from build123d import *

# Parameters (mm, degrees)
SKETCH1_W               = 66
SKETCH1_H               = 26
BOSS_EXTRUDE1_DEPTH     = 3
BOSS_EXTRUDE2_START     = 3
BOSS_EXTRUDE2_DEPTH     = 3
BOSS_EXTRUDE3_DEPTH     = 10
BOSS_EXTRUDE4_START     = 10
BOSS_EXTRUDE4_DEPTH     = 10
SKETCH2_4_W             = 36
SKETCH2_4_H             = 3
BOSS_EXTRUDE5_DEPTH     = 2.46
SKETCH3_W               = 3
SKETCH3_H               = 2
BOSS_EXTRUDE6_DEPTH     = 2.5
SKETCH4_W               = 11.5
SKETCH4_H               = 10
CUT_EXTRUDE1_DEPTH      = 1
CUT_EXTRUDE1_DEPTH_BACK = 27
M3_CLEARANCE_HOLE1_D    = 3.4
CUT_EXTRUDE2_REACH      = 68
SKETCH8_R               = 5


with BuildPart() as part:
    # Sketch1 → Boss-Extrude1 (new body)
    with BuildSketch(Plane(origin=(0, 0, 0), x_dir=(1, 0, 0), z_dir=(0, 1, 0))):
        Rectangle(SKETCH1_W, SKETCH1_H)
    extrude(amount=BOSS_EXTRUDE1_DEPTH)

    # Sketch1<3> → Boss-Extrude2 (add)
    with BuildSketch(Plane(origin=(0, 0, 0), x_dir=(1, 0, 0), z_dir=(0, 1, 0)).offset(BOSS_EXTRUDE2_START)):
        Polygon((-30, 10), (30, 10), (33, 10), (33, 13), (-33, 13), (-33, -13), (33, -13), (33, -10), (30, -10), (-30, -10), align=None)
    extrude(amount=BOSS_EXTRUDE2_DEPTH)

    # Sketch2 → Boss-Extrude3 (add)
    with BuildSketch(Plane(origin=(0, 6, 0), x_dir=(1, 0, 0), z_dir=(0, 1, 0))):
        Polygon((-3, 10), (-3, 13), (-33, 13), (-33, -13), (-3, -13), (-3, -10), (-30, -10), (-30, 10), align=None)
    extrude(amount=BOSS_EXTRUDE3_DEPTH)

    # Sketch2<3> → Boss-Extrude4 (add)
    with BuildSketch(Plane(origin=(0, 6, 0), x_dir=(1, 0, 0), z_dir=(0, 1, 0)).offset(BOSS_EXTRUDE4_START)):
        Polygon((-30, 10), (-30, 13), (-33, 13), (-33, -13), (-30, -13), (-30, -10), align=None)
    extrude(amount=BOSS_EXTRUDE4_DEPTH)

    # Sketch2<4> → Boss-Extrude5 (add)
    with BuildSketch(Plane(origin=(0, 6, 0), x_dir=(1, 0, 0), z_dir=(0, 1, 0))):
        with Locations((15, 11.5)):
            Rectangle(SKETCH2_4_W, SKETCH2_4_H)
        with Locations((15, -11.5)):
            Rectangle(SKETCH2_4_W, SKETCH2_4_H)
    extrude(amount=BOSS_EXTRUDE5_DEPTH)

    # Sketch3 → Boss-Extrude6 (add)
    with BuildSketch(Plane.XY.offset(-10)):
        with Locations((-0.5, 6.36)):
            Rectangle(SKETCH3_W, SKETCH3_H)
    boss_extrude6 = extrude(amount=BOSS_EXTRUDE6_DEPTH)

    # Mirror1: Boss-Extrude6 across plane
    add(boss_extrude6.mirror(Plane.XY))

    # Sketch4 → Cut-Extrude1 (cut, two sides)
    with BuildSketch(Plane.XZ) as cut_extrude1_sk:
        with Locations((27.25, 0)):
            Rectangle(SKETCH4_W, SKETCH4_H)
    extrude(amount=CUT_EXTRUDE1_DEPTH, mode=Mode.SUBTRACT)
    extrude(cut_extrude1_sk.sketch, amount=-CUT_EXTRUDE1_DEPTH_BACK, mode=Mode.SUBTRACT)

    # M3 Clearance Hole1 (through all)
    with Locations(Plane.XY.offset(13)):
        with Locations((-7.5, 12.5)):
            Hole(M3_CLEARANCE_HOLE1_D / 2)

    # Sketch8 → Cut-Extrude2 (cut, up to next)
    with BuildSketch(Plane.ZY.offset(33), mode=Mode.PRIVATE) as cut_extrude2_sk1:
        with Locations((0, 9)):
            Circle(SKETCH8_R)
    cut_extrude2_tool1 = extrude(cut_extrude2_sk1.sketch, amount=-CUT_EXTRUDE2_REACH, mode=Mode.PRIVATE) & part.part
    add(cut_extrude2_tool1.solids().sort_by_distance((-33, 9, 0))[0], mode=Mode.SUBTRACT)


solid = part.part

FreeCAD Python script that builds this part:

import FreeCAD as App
import Part
import Sketcher
Q = App.Units.Quantity

doc = App.newDocument("Part")
body = doc.addObject("PartDesign::Body", "Body")

# Sketch on XZ plane
sketch1 = body.newObject("Sketcher::SketchObject", "Sketch")
sketch1.AttachmentSupport = (doc.getObject("XZ_Plane"), [""])
sketch1.MapMode = "FlatFace"
sketch1.addGeometry([
    Part.LineSegment(App.Vector(-33, -13, 0), App.Vector(-33, 13, 0)),
    Part.LineSegment(App.Vector(-33, 13, 0), App.Vector(33, 13, 0)),
    Part.LineSegment(App.Vector(33, 13, 0), App.Vector(33, -13, 0)),
    Part.LineSegment(App.Vector(33, -13, 0), App.Vector(-33, -13, 0)),
], False)
sketch1.addConstraint([
    Sketcher.Constraint("Coincident", 0, 2, 1, 1),
    Sketcher.Constraint("Coincident", 1, 2, 2, 1),
    Sketcher.Constraint("Coincident", 2, 2, 3, 1),
    Sketcher.Constraint("Coincident", 3, 2, 0, 1),
    Sketcher.Constraint("Vertical", 0),
    Sketcher.Constraint("Horizontal", 1),
    Sketcher.Constraint("Vertical", 2),
    Sketcher.Constraint("Horizontal", 3),
    Sketcher.Constraint("Symmetric", 0, 2, 2, 2, -1, 1),
    Sketcher.Constraint("DistanceX", 1, 1, 1, 2, Q("66 mm")),
    Sketcher.Constraint("DistanceY", 0, 1, 0, 2, Q("26 mm")),
])
pad1 = body.newObject("PartDesign::Pad", "Pad")
pad1.Profile = sketch1
pad1.Length = 3
pad1.Reversed = True

# Sketch on XZ plane
sketch2 = body.newObject("Sketcher::SketchObject", "Sketch001")
sketch2.AttachmentSupport = (doc.getObject("XZ_Plane"), [""])
sketch2.MapMode = "FlatFace"
sketch2.AttachmentOffset = App.Placement(App.Vector(0, 0, -3), App.Rotation())
sketch2.addGeometry([
    Part.LineSegment(App.Vector(-30, -10, 0), App.Vector(33, -10, 0)),  # 0
    Part.LineSegment(App.Vector(33, -10, 0), App.Vector(33, -13, 0)),  # 1
    Part.LineSegment(App.Vector(33, -13, 0), App.Vector(-33, -13, 0)),  # 2
    Part.LineSegment(App.Vector(-33, -13, 0), App.Vector(-33, 13, 0)),  # 3
    Part.LineSegment(App.Vector(-33, 13, 0), App.Vector(33, 13, 0)),  # 4
    Part.LineSegment(App.Vector(33, 13, 0), App.Vector(33, 10, 0)),  # 5
    Part.LineSegment(App.Vector(33, 10, 0), App.Vector(-30, 10, 0)),  # 6
    Part.LineSegment(App.Vector(-30, 10, 0), App.Vector(-30, -10, 0)),  # 7
], False)
sketch2.addConstraint([
    Sketcher.Constraint("Coincident", 0, 2, 1, 1),
    Sketcher.Constraint("Coincident", 1, 2, 2, 1),
    Sketcher.Constraint("Coincident", 2, 2, 3, 1),
    Sketcher.Constraint("Coincident", 3, 2, 4, 1),
    Sketcher.Constraint("Coincident", 4, 2, 5, 1),
    Sketcher.Constraint("Coincident", 5, 2, 6, 1),
    Sketcher.Constraint("Coincident", 6, 2, 7, 1),
    Sketcher.Constraint("Coincident", 7, 2, 0, 1),
    Sketcher.Constraint("Horizontal", 0),
    Sketcher.Constraint("Vertical", 1),
    Sketcher.Constraint("Horizontal", 2),
    Sketcher.Constraint("Vertical", 3),
    Sketcher.Constraint("Horizontal", 4),
    Sketcher.Constraint("Vertical", 5),
    Sketcher.Constraint("Horizontal", 6),
    Sketcher.Constraint("Vertical", 7),
    Sketcher.Constraint("Symmetric", 1, 2, 3, 2, -1, 1),
    Sketcher.Constraint("Symmetric", 0, 2, 5, 2, -1),
    Sketcher.Constraint("DistanceX", 0, 1, 0, 2, Q("63 mm")),
    Sketcher.Constraint("DistanceX", 2, 2, 2, 1, Q("66 mm")),
    Sketcher.Constraint("DistanceY", 1, 2, 1, 1, Q("3 mm")),
    Sketcher.Constraint("DistanceY", 3, 1, 3, 2, Q("26 mm")),
])
pad2 = body.newObject("PartDesign::Pad", "Pad001")
pad2.Profile = sketch2
pad2.Length = 3
pad2.Reversed = True

# Sketch on XZ plane
sketch3 = body.newObject("Sketcher::SketchObject", "Sketch002")
sketch3.AttachmentSupport = (doc.getObject("XZ_Plane"), [""])
sketch3.MapMode = "FlatFace"
sketch3.AttachmentOffset = App.Placement(App.Vector(0, 0, -6), App.Rotation())
sketch3.addGeometry([
    Part.LineSegment(App.Vector(-3, -10, 0), App.Vector(-3, -13, 0)),  # 0
    Part.LineSegment(App.Vector(-3, -13, 0), App.Vector(-33, -13, 0)),  # 1
    Part.LineSegment(App.Vector(-33, -13, 0), App.Vector(-33, 13, 0)),  # 2
    Part.LineSegment(App.Vector(-33, 13, 0), App.Vector(-3, 13, 0)),  # 3
    Part.LineSegment(App.Vector(-3, 13, 0), App.Vector(-3, 10, 0)),  # 4
    Part.LineSegment(App.Vector(-3, 10, 0), App.Vector(-30, 10, 0)),  # 5
    Part.LineSegment(App.Vector(-30, 10, 0), App.Vector(-30, -10, 0)),  # 6
    Part.LineSegment(App.Vector(-30, -10, 0), App.Vector(-3, -10, 0)),  # 7
], False)
sketch3.addConstraint([
    Sketcher.Constraint("Coincident", 0, 2, 1, 1),
    Sketcher.Constraint("Coincident", 1, 2, 2, 1),
    Sketcher.Constraint("Coincident", 2, 2, 3, 1),
    Sketcher.Constraint("Coincident", 3, 2, 4, 1),
    Sketcher.Constraint("Coincident", 4, 2, 5, 1),
    Sketcher.Constraint("Coincident", 5, 2, 6, 1),
    Sketcher.Constraint("Coincident", 6, 2, 7, 1),
    Sketcher.Constraint("Coincident", 7, 2, 0, 1),
    Sketcher.Constraint("Vertical", 0),
    Sketcher.Constraint("Horizontal", 1),
    Sketcher.Constraint("Vertical", 2),
    Sketcher.Constraint("Horizontal", 3),
    Sketcher.Constraint("Vertical", 4),
    Sketcher.Constraint("Horizontal", 5),
    Sketcher.Constraint("Vertical", 6),
    Sketcher.Constraint("Horizontal", 7),
    Sketcher.Constraint("Symmetric", 0, 2, 3, 2, -1),
    Sketcher.Constraint("Equal", 0, 4),
    Sketcher.Constraint("DistanceX", 1, 2, 1, 1, Q("30 mm")),
    Sketcher.Constraint("DistanceX", 5, 2, 5, 1, Q("27 mm")),
    Sketcher.Constraint("DistanceY", 0, 2, 0, 1, Q("3 mm")),
    Sketcher.Constraint("DistanceY", 2, 1, 2, 2, Q("26 mm")),
    Sketcher.Constraint("DistanceX", 0, 2, -1, 1, Q("3 mm")),
])
pad3 = body.newObject("PartDesign::Pad", "Pad002")
pad3.Profile = sketch3
pad3.Length = 10
pad3.Reversed = True

# Sketch on XZ plane
sketch4 = body.newObject("Sketcher::SketchObject", "Sketch003")
sketch4.AttachmentSupport = (doc.getObject("XZ_Plane"), [""])
sketch4.MapMode = "FlatFace"
sketch4.AttachmentOffset = App.Placement(App.Vector(0, 0, -16), App.Rotation())
sketch4.addGeometry([
    Part.LineSegment(App.Vector(-30, -13, 0), App.Vector(-33, -13, 0)),
    Part.LineSegment(App.Vector(-33, -13, 0), App.Vector(-33, 13, 0)),
    Part.LineSegment(App.Vector(-33, 13, 0), App.Vector(-30, 13, 0)),
    Part.LineSegment(App.Vector(-30, 13, 0), App.Vector(-30, -13, 0)),
], False)
sketch4.addConstraint([
    Sketcher.Constraint("Coincident", 0, 2, 1, 1),
    Sketcher.Constraint("Coincident", 1, 2, 2, 1),
    Sketcher.Constraint("Coincident", 2, 2, 3, 1),
    Sketcher.Constraint("Coincident", 3, 2, 0, 1),
    Sketcher.Constraint("Horizontal", 0),
    Sketcher.Constraint("Vertical", 1),
    Sketcher.Constraint("Horizontal", 2),
    Sketcher.Constraint("Vertical", 3),
    Sketcher.Constraint("DistanceX", 0, 2, 0, 1, Q("3 mm")),
    Sketcher.Constraint("DistanceY", 1, 1, 1, 2, Q("26 mm")),
    Sketcher.Constraint("DistanceX", 0, 2, -1, 1, Q("33 mm")),
    Sketcher.Constraint("DistanceY", 0, 2, -1, 1, Q("13 mm")),
])
pad4 = body.newObject("PartDesign::Pad", "Pad003")
pad4.Profile = sketch4
pad4.Length = 10
pad4.Reversed = True

# Sketch on XZ plane
sketch5 = body.newObject("Sketcher::SketchObject", "Sketch004")
sketch5.AttachmentSupport = (doc.getObject("XZ_Plane"), [""])
sketch5.MapMode = "FlatFace"
sketch5.AttachmentOffset = App.Placement(App.Vector(0, 0, -6), App.Rotation())
sketch5.addGeometry([
    Part.LineSegment(App.Vector(-3, -13, 0), App.Vector(-3, -10, 0)),  # 0
    Part.LineSegment(App.Vector(-3, -10, 0), App.Vector(33, -10, 0)),  # 1
    Part.LineSegment(App.Vector(33, -10, 0), App.Vector(33, -13, 0)),  # 2
    Part.LineSegment(App.Vector(33, -13, 0), App.Vector(-3, -13, 0)),  # 3
    Part.LineSegment(App.Vector(-3, 10, 0), App.Vector(-3, 13, 0)),  # 4
    Part.LineSegment(App.Vector(-3, 13, 0), App.Vector(33, 13, 0)),  # 5
    Part.LineSegment(App.Vector(33, 13, 0), App.Vector(33, 10, 0)),  # 6
    Part.LineSegment(App.Vector(33, 10, 0), App.Vector(-3, 10, 0)),  # 7
], False)
sketch5.addConstraint([
    Sketcher.Constraint("Coincident", 0, 2, 1, 1),
    Sketcher.Constraint("Coincident", 1, 2, 2, 1),
    Sketcher.Constraint("Coincident", 2, 2, 3, 1),
    Sketcher.Constraint("Coincident", 3, 2, 0, 1),
    Sketcher.Constraint("Coincident", 4, 2, 5, 1),
    Sketcher.Constraint("Coincident", 5, 2, 6, 1),
    Sketcher.Constraint("Coincident", 6, 2, 7, 1),
    Sketcher.Constraint("Coincident", 7, 2, 4, 1),
    Sketcher.Constraint("Vertical", 0),
    Sketcher.Constraint("Horizontal", 1),
    Sketcher.Constraint("Vertical", 2),
    Sketcher.Constraint("Horizontal", 3),
    Sketcher.Constraint("Vertical", 4),
    Sketcher.Constraint("Horizontal", 5),
    Sketcher.Constraint("Vertical", 6),
    Sketcher.Constraint("Horizontal", 7),
    Sketcher.Constraint("Symmetric", 3, 2, 4, 2, -1),
    Sketcher.Constraint("Symmetric", 1, 2, 6, 2, -1),
    Sketcher.Constraint("DistanceX", 1, 1, 1, 2, Q("36 mm")),
    Sketcher.Constraint("DistanceY", 0, 1, 0, 2, Q("3 mm")),
    Sketcher.Constraint("DistanceX", 0, 2, -1, 1, Q("3 mm")),
    Sketcher.Constraint("DistanceY", 0, 2, -1, 1, Q("10 mm")),
])
pad5 = body.newObject("PartDesign::Pad", "Pad004")
pad5.Profile = sketch5
pad5.Length = 2.46
pad5.Reversed = True

# Sketch on XY plane
sketch6 = body.newObject("Sketcher::SketchObject", "Sketch005")
sketch6.AttachmentSupport = (doc.getObject("XY_Plane"), [""])
sketch6.MapMode = "FlatFace"
sketch6.AttachmentOffset = App.Placement(App.Vector(0, 0, -10), App.Rotation())
sketch6.addGeometry([
    Part.LineSegment(App.Vector(-2, 7.4, 0), App.Vector(-2, 5.4, 0)),
    Part.LineSegment(App.Vector(-2, 5.4, 0), App.Vector(1, 5.4, 0)),
    Part.LineSegment(App.Vector(1, 5.4, 0), App.Vector(1, 7.4, 0)),
    Part.LineSegment(App.Vector(1, 7.4, 0), App.Vector(-2, 7.4, 0)),
], False)
sketch6.addConstraint([
    Sketcher.Constraint("Coincident", 0, 2, 1, 1),
    Sketcher.Constraint("Coincident", 1, 2, 2, 1),
    Sketcher.Constraint("Coincident", 2, 2, 3, 1),
    Sketcher.Constraint("Coincident", 3, 2, 0, 1),
    Sketcher.Constraint("Vertical", 0),
    Sketcher.Constraint("Horizontal", 1),
    Sketcher.Constraint("Vertical", 2),
    Sketcher.Constraint("Horizontal", 3),
    Sketcher.Constraint("DistanceX", 1, 1, 1, 2, Q("3 mm")),
    Sketcher.Constraint("DistanceY", 0, 2, 0, 1, Q("2 mm")),
    Sketcher.Constraint("DistanceX", 0, 2, -1, 1, Q("2 mm")),
    Sketcher.Constraint("DistanceY", -1, 1, 0, 2, Q("5.36 mm")),
])
pad6 = body.newObject("PartDesign::Pad", "Pad005")
pad6.Profile = sketch6
pad6.Length = 2.5
doc.recompute()

mirrored = body.newObject("PartDesign::Mirrored", "Mirrored")
mirrored.Originals = [pad6]
mirrored.MirrorPlane = (doc.getObject("XY_Plane"), [""])
body.Tip = mirrored

# Sketch on XZ plane
sketch7 = body.newObject("Sketcher::SketchObject", "Sketch006")
sketch7.AttachmentSupport = (doc.getObject("XZ_Plane"), [""])
sketch7.MapMode = "FlatFace"
sketch7.addGeometry([
    Part.LineSegment(App.Vector(22, 5, 0), App.Vector(22, -5, 0)),
    Part.LineSegment(App.Vector(22, -5, 0), App.Vector(33, -5, 0)),
    Part.LineSegment(App.Vector(33, -5, 0), App.Vector(33, 5, 0)),
    Part.LineSegment(App.Vector(33, 5, 0), App.Vector(22, 5, 0)),
], False)
sketch7.addConstraint([
    Sketcher.Constraint("Coincident", 0, 2, 1, 1),
    Sketcher.Constraint("Coincident", 1, 2, 2, 1),
    Sketcher.Constraint("Coincident", 2, 2, 3, 1),
    Sketcher.Constraint("Coincident", 3, 2, 0, 1),
    Sketcher.Constraint("Vertical", 0),
    Sketcher.Constraint("Horizontal", 1),
    Sketcher.Constraint("Vertical", 2),
    Sketcher.Constraint("Horizontal", 3),
    Sketcher.Constraint("DistanceY", 0, 2, 0, 1, Q("10 mm")),
    Sketcher.Constraint("DistanceX", 1, 1, 1, 2, Q("11.5 mm")),
    Sketcher.Constraint("DistanceY", 0, 2, -1, 1, Q("5 mm")),
    Sketcher.Constraint("DistanceX", -1, 1, 1, 2, Q("33 mm")),
])
pocket1 = body.newObject("PartDesign::Pocket", "Pocket")
pocket1.Profile = sketch7
pocket1.Type = "ThroughAll"
pocket1.Midplane = True

# Sketch on XY plane
sketch8 = body.newObject("Sketcher::SketchObject", "Sketch007")
sketch8.AttachmentSupport = (doc.getObject("XY_Plane"), [""])
sketch8.MapMode = "FlatFace"
sketch8.AttachmentOffset = App.Placement(App.Vector(0, 0, 13), App.Rotation())
sketch8.addGeometry(Part.Circle(App.Vector(-7.5, 12.5, 0), App.Vector(0, 0, 1), 1.7), False)
sketch8.addConstraint([
    Sketcher.Constraint("Diameter", 0, Q("3.4 mm")),
    Sketcher.Constraint("DistanceX", 0, 3, -1, 1, Q("7.5 mm")),
    Sketcher.Constraint("DistanceY", -1, 1, 0, 3, Q("12.5 mm")),
])
doc.recompute()
hole = body.newObject("PartDesign::Hole", "Hole")
hole.Profile = sketch8
hole.ThreadType = "None"
hole.Diameter = 3.4
hole.DepthType = "ThroughAll"

# Sketch on YZ plane
sketch9 = body.newObject("Sketcher::SketchObject", "Sketch008")
sketch9.AttachmentSupport = (doc.getObject("YZ_Plane"), [""])
sketch9.MapMode = "FlatFace"
sketch9.AttachmentOffset = App.Placement(App.Vector(0, 0, -33), App.Rotation())
sketch9.addGeometry(Part.Circle(App.Vector(9, 0, 0), App.Vector(0, 0, 1), 5), False)
sketch9.addConstraint([
    Sketcher.Constraint("PointOnObject", 0, 3, -1),
    Sketcher.Constraint("Diameter", 0, Q("10 mm")),
    Sketcher.Constraint("DistanceX", -1, 1, 0, 3, Q("9 mm")),
])
pocket2 = body.newObject("PartDesign::Pocket", "Pocket001")
pocket2.Profile = sketch9
pocket2.Type = "UpToFirst"
pocket2.Reversed = True

doc.recompute()
